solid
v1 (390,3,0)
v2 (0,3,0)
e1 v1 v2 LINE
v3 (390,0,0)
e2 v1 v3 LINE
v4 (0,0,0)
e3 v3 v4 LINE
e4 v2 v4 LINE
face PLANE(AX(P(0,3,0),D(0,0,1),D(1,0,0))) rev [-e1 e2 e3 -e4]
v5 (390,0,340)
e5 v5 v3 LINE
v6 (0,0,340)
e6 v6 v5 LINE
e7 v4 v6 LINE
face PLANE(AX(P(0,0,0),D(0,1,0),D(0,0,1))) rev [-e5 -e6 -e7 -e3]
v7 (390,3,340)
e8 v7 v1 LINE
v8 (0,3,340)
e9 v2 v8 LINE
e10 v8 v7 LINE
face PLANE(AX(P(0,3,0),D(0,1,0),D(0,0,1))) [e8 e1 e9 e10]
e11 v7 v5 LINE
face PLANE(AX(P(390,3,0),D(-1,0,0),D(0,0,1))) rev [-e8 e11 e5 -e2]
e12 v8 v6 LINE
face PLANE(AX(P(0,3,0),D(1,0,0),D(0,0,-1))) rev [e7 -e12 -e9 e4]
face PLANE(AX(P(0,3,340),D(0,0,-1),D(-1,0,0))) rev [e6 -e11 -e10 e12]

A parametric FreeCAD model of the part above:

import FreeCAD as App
import Part
import Sketcher


def add_polygon(sketch, points):
    """Adds a closed chain of lines whose ends are joined by coincident constraints."""
    first, n = sketch.GeometryCount, len(points)
    for a, b in zip(points, points[1:] + points[:1]):
        sketch.addGeometry(Part.LineSegment(App.Vector(*a, 0), App.Vector(*b, 0)), False)
    for i in range(n):
        sketch.addConstraint(Sketcher.Constraint("Coincident", first + i, 2, first + (i + 1) % n, 1))

doc = App.newDocument("Part")
params = doc.addObject("Spreadsheet::Sheet", "Params")
for row, (alias, value) in enumerate([
    ("sketch1_width", "390 mm"),
    ("sketch1_height", "340 mm"),
    ("pad1_length", "3 mm"),
], start=1):
    params.set(f"A{row}", alias)
    params.set(f"B{row}", "=" + value)
    params.setAlias(f"B{row}", alias)

body = doc.addObject("PartDesign::Body", "Body")

# Sketch on XZ plane
sketch1 = body.newObject("Sketcher::SketchObject", "Sketch")
sketch1.AttachmentSupport = (doc.getObject("XZ_Plane"), [""])
sketch1.MapMode = "FlatFace"
add_polygon(sketch1, [(0, 0), (0, 340), (390, 340), (390, 0)])  # lines 0-3
sketch1.addConstraint([
    Sketcher.Constraint("Vertical", 0),
    Sketcher.Constraint("Horizontal", 1),
    Sketcher.Constraint("Vertical", 2),
    Sketcher.Constraint("Horizontal", 3),
    Sketcher.Constraint("Coincident", 3, 2, -1, 1),
    Sketcher.Constraint("DistanceX", 1, 1, 1, 2, 390.0),
    Sketcher.Constraint("DistanceY", 0, 1, 0, 2, 340.0),
])
sketch1.setExpression("Constraints[9]", "Params.sketch1_width")
sketch1.setExpression("Constraints[10]", "Params.sketch1_height")
pad1 = body.newObject("PartDesign::Pad", "Pad")
pad1.Profile = sketch1
pad1.setExpression("Length", "Params.pad1_length")
pad1.Reversed = True

doc.recompute()
